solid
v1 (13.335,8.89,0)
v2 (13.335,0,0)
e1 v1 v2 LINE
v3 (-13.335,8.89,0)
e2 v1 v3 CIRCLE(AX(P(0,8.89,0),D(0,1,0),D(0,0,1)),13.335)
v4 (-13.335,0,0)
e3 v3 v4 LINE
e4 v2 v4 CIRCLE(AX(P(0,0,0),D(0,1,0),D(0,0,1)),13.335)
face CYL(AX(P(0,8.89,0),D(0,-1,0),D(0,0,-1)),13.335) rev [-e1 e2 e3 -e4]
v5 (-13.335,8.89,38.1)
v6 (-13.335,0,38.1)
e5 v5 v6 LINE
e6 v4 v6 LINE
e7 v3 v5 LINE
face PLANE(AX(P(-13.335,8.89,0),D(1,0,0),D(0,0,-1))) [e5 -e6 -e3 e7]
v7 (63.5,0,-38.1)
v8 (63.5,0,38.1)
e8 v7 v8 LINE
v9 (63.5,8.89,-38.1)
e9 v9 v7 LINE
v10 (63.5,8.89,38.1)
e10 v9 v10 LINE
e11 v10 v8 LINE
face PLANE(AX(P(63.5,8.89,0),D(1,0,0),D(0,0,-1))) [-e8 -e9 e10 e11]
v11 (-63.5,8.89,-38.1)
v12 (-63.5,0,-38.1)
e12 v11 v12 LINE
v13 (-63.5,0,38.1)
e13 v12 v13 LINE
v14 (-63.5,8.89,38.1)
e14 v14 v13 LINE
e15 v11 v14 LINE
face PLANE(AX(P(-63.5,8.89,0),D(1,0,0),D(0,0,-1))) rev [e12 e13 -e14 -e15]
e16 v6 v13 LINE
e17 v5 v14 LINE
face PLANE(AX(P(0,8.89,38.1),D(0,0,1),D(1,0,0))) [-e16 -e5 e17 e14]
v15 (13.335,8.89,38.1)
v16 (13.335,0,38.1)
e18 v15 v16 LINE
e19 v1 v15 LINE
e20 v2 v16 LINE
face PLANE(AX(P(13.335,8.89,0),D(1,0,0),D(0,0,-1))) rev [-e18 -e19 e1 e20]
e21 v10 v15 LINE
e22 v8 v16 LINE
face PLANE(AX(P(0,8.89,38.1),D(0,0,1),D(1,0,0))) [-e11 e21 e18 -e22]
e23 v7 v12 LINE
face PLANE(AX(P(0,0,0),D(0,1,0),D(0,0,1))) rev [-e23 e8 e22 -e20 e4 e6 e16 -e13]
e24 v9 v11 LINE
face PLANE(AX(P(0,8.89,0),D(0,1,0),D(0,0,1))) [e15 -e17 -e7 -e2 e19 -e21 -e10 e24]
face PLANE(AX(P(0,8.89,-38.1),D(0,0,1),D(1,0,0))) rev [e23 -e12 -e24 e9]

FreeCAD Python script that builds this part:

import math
import FreeCAD as App
import Part
import Sketcher
Q = App.Units.Quantity

doc = App.newDocument("Part")
body = doc.addObject("PartDesign::Body", "Body")

sketch1 = body.newObject("Sketcher::SketchObject", "Sketch")
sketch1.AttachmentSupport = (doc.getObject("XZ_Plane"), [""])
sketch1.MapMode = "FlatFace"
sketch1.addGeometry([
    Part.LineSegment(App.Vector(-13, 38, 0), App.Vector(-13, 0, 0)),
    Part.ArcOfCircle(Part.Circle(App.Vector(0, 0, 0), App.Vector(0, 0, 1), 13), math.radians(180), math.radians(360)),
    Part.LineSegment(App.Vector(13, 0, 0), App.Vector(13, 38, 0)),
    Part.LineSegment(App.Vector(13, 38, 0), App.Vector(64, 38, 0)),
    Part.LineSegment(App.Vector(64, 38, 0), App.Vector(64, -38, 0)),
    Part.LineSegment(App.Vector(64, -38, 0), App.Vector(-64, -38, 0)),
    Part.LineSegment(App.Vector(-64, -38, 0), App.Vector(-64, 38, 0)),
    Part.LineSegment(App.Vector(-64, 38, 0), App.Vector(-13, 38, 0)),
], False)
sketch1.addConstraint([
    Sketcher.Constraint("Tangent", 0, 2, 1, 1),
    Sketcher.Constraint("Tangent", 1, 2, 2, 1),
    Sketcher.Constraint("Coincident", 2, 2, 3, 1),
    Sketcher.Constraint("Coincident", 3, 2, 4, 1),
    Sketcher.Constraint("Coincident", 4, 2, 5, 1),
    Sketcher.Constraint("Coincident", 5, 2, 6, 1),
    Sketcher.Constraint("Coincident", 6, 2, 7, 1),
    Sketcher.Constraint("Coincident", 7, 2, 0, 1),
    Sketcher.Constraint("Vertical", 0),
    Sketcher.Constraint("Vertical", 2),
    Sketcher.Constraint("Horizontal", 3),
    Sketcher.Constraint("Vertical", 4),
    Sketcher.Constraint("Horizontal", 5),
    Sketcher.Constraint("Vertical", 6),
    Sketcher.Constraint("Horizontal", 7),
    Sketcher.Constraint("Coincident", 1, 3, -1, 1),
    Sketcher.Constraint("Symmetric", 3, 2, 5, 2, -1, 1),
    Sketcher.Constraint("Horizontal", 3, 2, 6, 2),
    Sketcher.Constraint("DistanceX", 5, 2, 5, 1, Q("5 in")),
    Sketcher.Constraint("DistanceY", 4, 2, 4, 1, Q("3 in")),
    Sketcher.Constraint("Radius", 1, Q("0.525 in")),
])
pad1 = body.newObject("PartDesign::Pad", "Pad")
pad1.Profile = sketch1
pad1.Length = Q("0.35 in")
pad1.Reversed = True

doc.recompute()
